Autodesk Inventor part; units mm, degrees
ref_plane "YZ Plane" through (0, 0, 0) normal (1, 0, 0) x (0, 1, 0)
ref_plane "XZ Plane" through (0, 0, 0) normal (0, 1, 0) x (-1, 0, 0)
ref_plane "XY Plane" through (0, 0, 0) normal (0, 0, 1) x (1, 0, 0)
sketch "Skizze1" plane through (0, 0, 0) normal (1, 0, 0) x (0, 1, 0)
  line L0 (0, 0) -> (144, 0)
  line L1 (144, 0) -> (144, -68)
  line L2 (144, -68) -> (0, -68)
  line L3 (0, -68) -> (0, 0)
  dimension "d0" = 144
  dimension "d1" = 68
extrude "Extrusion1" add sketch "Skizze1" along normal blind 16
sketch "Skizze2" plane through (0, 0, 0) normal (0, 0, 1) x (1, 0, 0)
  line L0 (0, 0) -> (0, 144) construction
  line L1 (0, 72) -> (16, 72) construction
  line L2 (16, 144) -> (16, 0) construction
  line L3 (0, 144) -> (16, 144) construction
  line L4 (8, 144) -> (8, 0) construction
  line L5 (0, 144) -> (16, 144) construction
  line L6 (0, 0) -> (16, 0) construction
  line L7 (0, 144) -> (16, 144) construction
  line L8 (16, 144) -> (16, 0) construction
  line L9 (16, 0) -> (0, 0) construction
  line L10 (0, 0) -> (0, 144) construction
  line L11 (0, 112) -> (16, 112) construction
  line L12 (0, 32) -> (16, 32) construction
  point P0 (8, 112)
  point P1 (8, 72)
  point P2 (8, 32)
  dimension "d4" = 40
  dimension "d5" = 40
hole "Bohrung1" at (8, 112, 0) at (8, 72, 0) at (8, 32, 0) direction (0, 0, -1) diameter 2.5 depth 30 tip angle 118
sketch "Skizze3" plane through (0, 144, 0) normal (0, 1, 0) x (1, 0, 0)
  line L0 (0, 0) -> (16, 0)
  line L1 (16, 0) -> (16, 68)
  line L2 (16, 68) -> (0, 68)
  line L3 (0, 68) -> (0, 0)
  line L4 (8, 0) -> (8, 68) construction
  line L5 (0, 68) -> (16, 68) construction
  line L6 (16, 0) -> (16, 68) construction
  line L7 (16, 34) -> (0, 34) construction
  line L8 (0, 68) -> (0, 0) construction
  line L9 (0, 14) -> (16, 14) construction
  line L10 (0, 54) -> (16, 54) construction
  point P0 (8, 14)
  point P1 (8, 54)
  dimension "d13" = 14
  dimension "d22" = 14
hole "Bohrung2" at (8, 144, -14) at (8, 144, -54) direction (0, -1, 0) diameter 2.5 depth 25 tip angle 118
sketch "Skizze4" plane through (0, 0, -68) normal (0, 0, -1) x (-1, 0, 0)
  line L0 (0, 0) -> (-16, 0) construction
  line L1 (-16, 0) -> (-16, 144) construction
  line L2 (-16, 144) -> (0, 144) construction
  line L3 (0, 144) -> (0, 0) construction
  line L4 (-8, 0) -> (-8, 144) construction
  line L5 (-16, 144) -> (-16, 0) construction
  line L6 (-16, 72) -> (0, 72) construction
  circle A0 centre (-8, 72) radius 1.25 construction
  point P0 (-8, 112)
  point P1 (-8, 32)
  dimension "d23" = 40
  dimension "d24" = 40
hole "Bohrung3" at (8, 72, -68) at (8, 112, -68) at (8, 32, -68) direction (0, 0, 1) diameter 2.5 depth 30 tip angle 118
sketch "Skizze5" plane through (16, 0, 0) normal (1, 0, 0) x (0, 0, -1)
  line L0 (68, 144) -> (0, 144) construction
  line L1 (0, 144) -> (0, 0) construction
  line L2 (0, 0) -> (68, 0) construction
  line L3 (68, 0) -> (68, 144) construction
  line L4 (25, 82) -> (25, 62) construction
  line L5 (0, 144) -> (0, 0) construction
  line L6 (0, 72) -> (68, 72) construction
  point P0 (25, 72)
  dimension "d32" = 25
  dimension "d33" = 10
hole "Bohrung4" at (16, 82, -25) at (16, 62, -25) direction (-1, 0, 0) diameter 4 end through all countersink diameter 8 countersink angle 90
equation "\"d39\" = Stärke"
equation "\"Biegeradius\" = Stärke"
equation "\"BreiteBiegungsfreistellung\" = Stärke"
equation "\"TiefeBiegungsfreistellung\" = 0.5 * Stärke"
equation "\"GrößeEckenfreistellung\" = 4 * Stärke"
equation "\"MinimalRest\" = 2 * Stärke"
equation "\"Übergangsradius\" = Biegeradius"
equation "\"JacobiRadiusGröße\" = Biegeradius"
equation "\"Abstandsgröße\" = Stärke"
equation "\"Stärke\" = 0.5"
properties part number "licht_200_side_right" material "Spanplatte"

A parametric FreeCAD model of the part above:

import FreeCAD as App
import Part
import Sketcher
from FreeCAD import Vector


def add_polygon(sketch, points):
    """Adds a closed chain of lines whose ends are joined by coincident constraints."""
    first, n = sketch.GeometryCount, len(points)
    for a, b in zip(points, points[1:] + points[:1]):
        sketch.addGeometry(Part.LineSegment(App.Vector(*a, 0), App.Vector(*b, 0)), False)
    for i in range(n):
        sketch.addConstraint(Sketcher.Constraint("Coincident", first + i, 2, first + (i + 1) % n, 1))

doc = App.newDocument("Part")
params = doc.addObject("Spreadsheet::Sheet", "Params")
for row, (alias, value) in enumerate([
    ("sketch1_width", "144 mm"),
    ("sketch1_height", "68 mm"),
    ("pad1_length", "16 mm"),
    ("sketch2_diameter", "2.5 mm"),
    ("hole_diameter", "2.5 mm"),
    ("hole_depth", "30 mm"),
    ("sketch3_diameter", "2.5 mm"),
    ("hole2_diameter", "2.5 mm"),
    ("hole2_depth", "25 mm"),
    ("sketch4_diameter", "2.5 mm"),
    ("hole3_diameter", "2.5 mm"),
    ("hole3_depth", "30 mm"),
    ("sketch5_diameter", "4 mm"),
    ("hole4_diameter", "4 mm"),
    ("hole4_csink_diameter", "8 mm"),
], start=1):
    params.set(f"A{row}", alias)
    params.set(f"B{row}", "=" + value)
    params.setAlias(f"B{row}", alias)

body = doc.addObject("PartDesign::Body", "Body")

# Sketch on YZ plane
sketch1 = doc.addObject("Sketcher::SketchObject", "Sketch")
body.addObject(sketch1)
sketch1.AttachmentSupport = (doc.YZ_Plane, [""])
sketch1.MapMode = "FlatFace"
add_polygon(sketch1, [(144, 0), (0, 0), (0, -68), (144, -68)])  # lines 0-3
sketch1.addConstraint([
    Sketcher.Constraint("Horizontal", 0),
    Sketcher.Constraint("Vertical", 1),
    Sketcher.Constraint("Horizontal", 2),
    Sketcher.Constraint("Vertical", 3),
    Sketcher.Constraint("Coincident", 0, 2, -1, 1),
    Sketcher.Constraint("DistanceX", 0, 2, 0, 1, 144.0),
    Sketcher.Constraint("DistanceY", 1, 2, 1, 1, 68.0),
])
sketch1.setExpression("Constraints[9]", "Params.sketch1_width")
sketch1.setExpression("Constraints[10]", "Params.sketch1_height")
pad1 = doc.addObject("PartDesign::Pad", "Pad")
body.addObject(pad1)
pad1.Profile = sketch1
pad1.setExpression("Length", "Params.pad1_length")

# Sketch on XY plane
sketch2 = doc.addObject("Sketcher::SketchObject", "Sketch001")
body.addObject(sketch2)
sketch2.AttachmentSupport = (doc.XY_Plane, [""])
sketch2.MapMode = "FlatFace"
sketch2.addGeometry([
    Part.Circle(Vector(8, 112, 0), Vector(0, 0, 1), 1.2),
    Part.Circle(Vector(8, 72, 0), Vector(0, 0, 1), 1.2),
    Part.Circle(Vector(8, 32, 0), Vector(0, 0, 1), 1.2),
], False)
sketch2.addConstraint([
    Sketcher.Constraint("Equal", 0, 1),
    Sketcher.Constraint("Equal", 1, 2),
    Sketcher.Constraint("Vertical", 0, 3, 1, 3),
    Sketcher.Constraint("Vertical", 1, 3, 2, 3),
    Sketcher.Constraint("Diameter", 0, 2.5),
    Sketcher.Constraint("DistanceX", -1, 1, 0, 3, 8.0),
    Sketcher.Constraint("DistanceY", -1, 1, 0, 3, 112.0),
    Sketcher.Constraint("DistanceY", -1, 1, 1, 3, 72.0),
    Sketcher.Constraint("DistanceY", -1, 1, 2, 3, 32.0),
])
sketch2.setExpression("Constraints[4]", "Params.sketch2_diameter")
doc.recompute()
hole = doc.addObject("PartDesign::Hole", "Hole")
body.addObject(hole)
hole.Profile = sketch2
hole.ThreadType = "None"
hole.setExpression("Diameter", "Params.hole_diameter")
hole.DepthType = "Dimension"
hole.setExpression("Depth", "Params.hole_depth")
hole.DrillPoint = "Angled"
hole.DrillPointAngle = 118

# Sketch on XZ plane
sketch3 = doc.addObject("Sketcher::SketchObject", "Sketch002")
body.addObject(sketch3)
sketch3.AttachmentSupport = (doc.XZ_Plane, [""])
sketch3.MapMode = "FlatFace"
sketch3.AttachmentOffset = App.Placement(Vector(0, 0, -144), App.Rotation())
sketch3.addGeometry([
    Part.Circle(Vector(8, -14, 0), Vector(0, 0, 1), 1.2),
    Part.Circle(Vector(8, -54, 0), Vector(0, 0, 1), 1.2),
], False)
sketch3.addConstraint([
    Sketcher.Constraint("Equal", 0, 1),
    Sketcher.Constraint("Vertical", 0, 3, 1, 3),
    Sketcher.Constraint("Diameter", 0, 2.5),
    Sketcher.Constraint("DistanceX", -1, 1, 0, 3, 8.0),
    Sketcher.Constraint("DistanceY", 0, 3, -1, 1, 14.0),
    Sketcher.Constraint("DistanceY", 1, 3, -1, 1, 54.0),
])
sketch3.setExpression("Constraints[2]", "Params.sketch3_diameter")
doc.recompute()
hole2 = doc.addObject("PartDesign::Hole", "Hole001")
body.addObject(hole2)
hole2.Profile = sketch3
hole2.ThreadType = "None"
hole2.setExpression("Diameter", "Params.hole2_diameter")
hole2.DepthType = "Dimension"
hole2.setExpression("Depth", "Params.hole2_depth")
hole2.DrillPoint = "Angled"
hole2.DrillPointAngle = 118
hole2.Reversed = True

# Sketch on XY plane
sketch4 = doc.addObject("Sketcher::SketchObject", "Sketch003")
body.addObject(sketch4)
sketch4.AttachmentSupport = (doc.XY_Plane, [""])
sketch4.MapMode = "FlatFace"
sketch4.AttachmentOffset = App.Placement(Vector(0, 0, -68), App.Rotation())
sketch4.addGeometry([
    Part.Circle(Vector(8, 72, 0), Vector(0, 0, 1), 1.2),
    Part.Circle(Vector(8, 112, 0), Vector(0, 0, 1), 1.2),
    Part.Circle(Vector(8, 32, 0), Vector(0, 0, 1), 1.2),
], False)
sketch4.addConstraint([
    Sketcher.Constraint("Equal", 0, 1),
    Sketcher.Constraint("Equal", 1, 2),
    Sketcher.Constraint("Vertical", 0, 3, 1, 3),
    Sketcher.Constraint("Vertical", 1, 3, 2, 3),
    Sketcher.Constraint("Diameter", 0, 2.5),
    Sketcher.Constraint("DistanceX", -1, 1, 0, 3, 8.0),
    Sketcher.Constraint("DistanceY", -1, 1, 0, 3, 72.0),
    Sketcher.Constraint("DistanceY", -1, 1, 1, 3, 112.0),
    Sketcher.Constraint("DistanceY", -1, 1, 2, 3, 32.0),
])
sketch4.setExpression("Constraints[4]", "Params.sketch4_diameter")
doc.recompute()
hole3 = doc.addObject("PartDesign::Hole", "Hole002")
body.addObject(hole3)
hole3.Profile = sketch4
hole3.ThreadType = "None"
hole3.setExpression("Diameter", "Params.hole3_diameter")
hole3.DepthType = "Dimension"
hole3.setExpression("Depth", "Params.hole3_depth")
hole3.DrillPoint = "Angled"
hole3.DrillPointAngle = 118
hole3.Reversed = True

# Sketch on YZ plane
sketch5 = doc.addObject("Sketcher::SketchObject", "Sketch004")
body.addObject(sketch5)
sketch5.AttachmentSupport = (doc.YZ_Plane, [""])
sketch5.MapMode = "FlatFace"
sketch5.AttachmentOffset = App.Placement(Vector(0, 0, 16), App.Rotation())
sketch5.addGeometry([
    Part.Circle(Vector(82, -25, 0), Vector(0, 0, 1), 2),
    Part.Circle(Vector(62, -25, 0), Vector(0, 0, 1), 2),
], False)
sketch5.addConstraint([
    Sketcher.Constraint("Equal", 0, 1),
    Sketcher.Constraint("Horizontal", 0, 3, 1, 3),
    Sketcher.Constraint("Diameter", 0, 4.0),
    Sketcher.Constraint("DistanceX", -1, 1, 0, 3, 82.0),
    Sketcher.Constraint("DistanceY", 0, 3, -1, 1, 25.0),
    Sketcher.Constraint("DistanceX", -1, 1, 1, 3, 62.0),
])
sketch5.setExpression("Constraints[2]", "Params.sketch5_diameter")
doc.recompute()
hole4 = doc.addObject("PartDesign::Hole", "Hole003")
body.addObject(hole4)
hole4.Profile = sketch5
hole4.ThreadType = "None"
hole4.setExpression("Diameter", "Params.hole4_diameter")
hole4.DepthType = "ThroughAll"
hole4.HoleCutType = "Countersink"
hole4.setExpression("HoleCutDiameter", "Params.hole4_csink_diameter")
hole4.HoleCutCountersinkAngle = 90

doc.recompute()
